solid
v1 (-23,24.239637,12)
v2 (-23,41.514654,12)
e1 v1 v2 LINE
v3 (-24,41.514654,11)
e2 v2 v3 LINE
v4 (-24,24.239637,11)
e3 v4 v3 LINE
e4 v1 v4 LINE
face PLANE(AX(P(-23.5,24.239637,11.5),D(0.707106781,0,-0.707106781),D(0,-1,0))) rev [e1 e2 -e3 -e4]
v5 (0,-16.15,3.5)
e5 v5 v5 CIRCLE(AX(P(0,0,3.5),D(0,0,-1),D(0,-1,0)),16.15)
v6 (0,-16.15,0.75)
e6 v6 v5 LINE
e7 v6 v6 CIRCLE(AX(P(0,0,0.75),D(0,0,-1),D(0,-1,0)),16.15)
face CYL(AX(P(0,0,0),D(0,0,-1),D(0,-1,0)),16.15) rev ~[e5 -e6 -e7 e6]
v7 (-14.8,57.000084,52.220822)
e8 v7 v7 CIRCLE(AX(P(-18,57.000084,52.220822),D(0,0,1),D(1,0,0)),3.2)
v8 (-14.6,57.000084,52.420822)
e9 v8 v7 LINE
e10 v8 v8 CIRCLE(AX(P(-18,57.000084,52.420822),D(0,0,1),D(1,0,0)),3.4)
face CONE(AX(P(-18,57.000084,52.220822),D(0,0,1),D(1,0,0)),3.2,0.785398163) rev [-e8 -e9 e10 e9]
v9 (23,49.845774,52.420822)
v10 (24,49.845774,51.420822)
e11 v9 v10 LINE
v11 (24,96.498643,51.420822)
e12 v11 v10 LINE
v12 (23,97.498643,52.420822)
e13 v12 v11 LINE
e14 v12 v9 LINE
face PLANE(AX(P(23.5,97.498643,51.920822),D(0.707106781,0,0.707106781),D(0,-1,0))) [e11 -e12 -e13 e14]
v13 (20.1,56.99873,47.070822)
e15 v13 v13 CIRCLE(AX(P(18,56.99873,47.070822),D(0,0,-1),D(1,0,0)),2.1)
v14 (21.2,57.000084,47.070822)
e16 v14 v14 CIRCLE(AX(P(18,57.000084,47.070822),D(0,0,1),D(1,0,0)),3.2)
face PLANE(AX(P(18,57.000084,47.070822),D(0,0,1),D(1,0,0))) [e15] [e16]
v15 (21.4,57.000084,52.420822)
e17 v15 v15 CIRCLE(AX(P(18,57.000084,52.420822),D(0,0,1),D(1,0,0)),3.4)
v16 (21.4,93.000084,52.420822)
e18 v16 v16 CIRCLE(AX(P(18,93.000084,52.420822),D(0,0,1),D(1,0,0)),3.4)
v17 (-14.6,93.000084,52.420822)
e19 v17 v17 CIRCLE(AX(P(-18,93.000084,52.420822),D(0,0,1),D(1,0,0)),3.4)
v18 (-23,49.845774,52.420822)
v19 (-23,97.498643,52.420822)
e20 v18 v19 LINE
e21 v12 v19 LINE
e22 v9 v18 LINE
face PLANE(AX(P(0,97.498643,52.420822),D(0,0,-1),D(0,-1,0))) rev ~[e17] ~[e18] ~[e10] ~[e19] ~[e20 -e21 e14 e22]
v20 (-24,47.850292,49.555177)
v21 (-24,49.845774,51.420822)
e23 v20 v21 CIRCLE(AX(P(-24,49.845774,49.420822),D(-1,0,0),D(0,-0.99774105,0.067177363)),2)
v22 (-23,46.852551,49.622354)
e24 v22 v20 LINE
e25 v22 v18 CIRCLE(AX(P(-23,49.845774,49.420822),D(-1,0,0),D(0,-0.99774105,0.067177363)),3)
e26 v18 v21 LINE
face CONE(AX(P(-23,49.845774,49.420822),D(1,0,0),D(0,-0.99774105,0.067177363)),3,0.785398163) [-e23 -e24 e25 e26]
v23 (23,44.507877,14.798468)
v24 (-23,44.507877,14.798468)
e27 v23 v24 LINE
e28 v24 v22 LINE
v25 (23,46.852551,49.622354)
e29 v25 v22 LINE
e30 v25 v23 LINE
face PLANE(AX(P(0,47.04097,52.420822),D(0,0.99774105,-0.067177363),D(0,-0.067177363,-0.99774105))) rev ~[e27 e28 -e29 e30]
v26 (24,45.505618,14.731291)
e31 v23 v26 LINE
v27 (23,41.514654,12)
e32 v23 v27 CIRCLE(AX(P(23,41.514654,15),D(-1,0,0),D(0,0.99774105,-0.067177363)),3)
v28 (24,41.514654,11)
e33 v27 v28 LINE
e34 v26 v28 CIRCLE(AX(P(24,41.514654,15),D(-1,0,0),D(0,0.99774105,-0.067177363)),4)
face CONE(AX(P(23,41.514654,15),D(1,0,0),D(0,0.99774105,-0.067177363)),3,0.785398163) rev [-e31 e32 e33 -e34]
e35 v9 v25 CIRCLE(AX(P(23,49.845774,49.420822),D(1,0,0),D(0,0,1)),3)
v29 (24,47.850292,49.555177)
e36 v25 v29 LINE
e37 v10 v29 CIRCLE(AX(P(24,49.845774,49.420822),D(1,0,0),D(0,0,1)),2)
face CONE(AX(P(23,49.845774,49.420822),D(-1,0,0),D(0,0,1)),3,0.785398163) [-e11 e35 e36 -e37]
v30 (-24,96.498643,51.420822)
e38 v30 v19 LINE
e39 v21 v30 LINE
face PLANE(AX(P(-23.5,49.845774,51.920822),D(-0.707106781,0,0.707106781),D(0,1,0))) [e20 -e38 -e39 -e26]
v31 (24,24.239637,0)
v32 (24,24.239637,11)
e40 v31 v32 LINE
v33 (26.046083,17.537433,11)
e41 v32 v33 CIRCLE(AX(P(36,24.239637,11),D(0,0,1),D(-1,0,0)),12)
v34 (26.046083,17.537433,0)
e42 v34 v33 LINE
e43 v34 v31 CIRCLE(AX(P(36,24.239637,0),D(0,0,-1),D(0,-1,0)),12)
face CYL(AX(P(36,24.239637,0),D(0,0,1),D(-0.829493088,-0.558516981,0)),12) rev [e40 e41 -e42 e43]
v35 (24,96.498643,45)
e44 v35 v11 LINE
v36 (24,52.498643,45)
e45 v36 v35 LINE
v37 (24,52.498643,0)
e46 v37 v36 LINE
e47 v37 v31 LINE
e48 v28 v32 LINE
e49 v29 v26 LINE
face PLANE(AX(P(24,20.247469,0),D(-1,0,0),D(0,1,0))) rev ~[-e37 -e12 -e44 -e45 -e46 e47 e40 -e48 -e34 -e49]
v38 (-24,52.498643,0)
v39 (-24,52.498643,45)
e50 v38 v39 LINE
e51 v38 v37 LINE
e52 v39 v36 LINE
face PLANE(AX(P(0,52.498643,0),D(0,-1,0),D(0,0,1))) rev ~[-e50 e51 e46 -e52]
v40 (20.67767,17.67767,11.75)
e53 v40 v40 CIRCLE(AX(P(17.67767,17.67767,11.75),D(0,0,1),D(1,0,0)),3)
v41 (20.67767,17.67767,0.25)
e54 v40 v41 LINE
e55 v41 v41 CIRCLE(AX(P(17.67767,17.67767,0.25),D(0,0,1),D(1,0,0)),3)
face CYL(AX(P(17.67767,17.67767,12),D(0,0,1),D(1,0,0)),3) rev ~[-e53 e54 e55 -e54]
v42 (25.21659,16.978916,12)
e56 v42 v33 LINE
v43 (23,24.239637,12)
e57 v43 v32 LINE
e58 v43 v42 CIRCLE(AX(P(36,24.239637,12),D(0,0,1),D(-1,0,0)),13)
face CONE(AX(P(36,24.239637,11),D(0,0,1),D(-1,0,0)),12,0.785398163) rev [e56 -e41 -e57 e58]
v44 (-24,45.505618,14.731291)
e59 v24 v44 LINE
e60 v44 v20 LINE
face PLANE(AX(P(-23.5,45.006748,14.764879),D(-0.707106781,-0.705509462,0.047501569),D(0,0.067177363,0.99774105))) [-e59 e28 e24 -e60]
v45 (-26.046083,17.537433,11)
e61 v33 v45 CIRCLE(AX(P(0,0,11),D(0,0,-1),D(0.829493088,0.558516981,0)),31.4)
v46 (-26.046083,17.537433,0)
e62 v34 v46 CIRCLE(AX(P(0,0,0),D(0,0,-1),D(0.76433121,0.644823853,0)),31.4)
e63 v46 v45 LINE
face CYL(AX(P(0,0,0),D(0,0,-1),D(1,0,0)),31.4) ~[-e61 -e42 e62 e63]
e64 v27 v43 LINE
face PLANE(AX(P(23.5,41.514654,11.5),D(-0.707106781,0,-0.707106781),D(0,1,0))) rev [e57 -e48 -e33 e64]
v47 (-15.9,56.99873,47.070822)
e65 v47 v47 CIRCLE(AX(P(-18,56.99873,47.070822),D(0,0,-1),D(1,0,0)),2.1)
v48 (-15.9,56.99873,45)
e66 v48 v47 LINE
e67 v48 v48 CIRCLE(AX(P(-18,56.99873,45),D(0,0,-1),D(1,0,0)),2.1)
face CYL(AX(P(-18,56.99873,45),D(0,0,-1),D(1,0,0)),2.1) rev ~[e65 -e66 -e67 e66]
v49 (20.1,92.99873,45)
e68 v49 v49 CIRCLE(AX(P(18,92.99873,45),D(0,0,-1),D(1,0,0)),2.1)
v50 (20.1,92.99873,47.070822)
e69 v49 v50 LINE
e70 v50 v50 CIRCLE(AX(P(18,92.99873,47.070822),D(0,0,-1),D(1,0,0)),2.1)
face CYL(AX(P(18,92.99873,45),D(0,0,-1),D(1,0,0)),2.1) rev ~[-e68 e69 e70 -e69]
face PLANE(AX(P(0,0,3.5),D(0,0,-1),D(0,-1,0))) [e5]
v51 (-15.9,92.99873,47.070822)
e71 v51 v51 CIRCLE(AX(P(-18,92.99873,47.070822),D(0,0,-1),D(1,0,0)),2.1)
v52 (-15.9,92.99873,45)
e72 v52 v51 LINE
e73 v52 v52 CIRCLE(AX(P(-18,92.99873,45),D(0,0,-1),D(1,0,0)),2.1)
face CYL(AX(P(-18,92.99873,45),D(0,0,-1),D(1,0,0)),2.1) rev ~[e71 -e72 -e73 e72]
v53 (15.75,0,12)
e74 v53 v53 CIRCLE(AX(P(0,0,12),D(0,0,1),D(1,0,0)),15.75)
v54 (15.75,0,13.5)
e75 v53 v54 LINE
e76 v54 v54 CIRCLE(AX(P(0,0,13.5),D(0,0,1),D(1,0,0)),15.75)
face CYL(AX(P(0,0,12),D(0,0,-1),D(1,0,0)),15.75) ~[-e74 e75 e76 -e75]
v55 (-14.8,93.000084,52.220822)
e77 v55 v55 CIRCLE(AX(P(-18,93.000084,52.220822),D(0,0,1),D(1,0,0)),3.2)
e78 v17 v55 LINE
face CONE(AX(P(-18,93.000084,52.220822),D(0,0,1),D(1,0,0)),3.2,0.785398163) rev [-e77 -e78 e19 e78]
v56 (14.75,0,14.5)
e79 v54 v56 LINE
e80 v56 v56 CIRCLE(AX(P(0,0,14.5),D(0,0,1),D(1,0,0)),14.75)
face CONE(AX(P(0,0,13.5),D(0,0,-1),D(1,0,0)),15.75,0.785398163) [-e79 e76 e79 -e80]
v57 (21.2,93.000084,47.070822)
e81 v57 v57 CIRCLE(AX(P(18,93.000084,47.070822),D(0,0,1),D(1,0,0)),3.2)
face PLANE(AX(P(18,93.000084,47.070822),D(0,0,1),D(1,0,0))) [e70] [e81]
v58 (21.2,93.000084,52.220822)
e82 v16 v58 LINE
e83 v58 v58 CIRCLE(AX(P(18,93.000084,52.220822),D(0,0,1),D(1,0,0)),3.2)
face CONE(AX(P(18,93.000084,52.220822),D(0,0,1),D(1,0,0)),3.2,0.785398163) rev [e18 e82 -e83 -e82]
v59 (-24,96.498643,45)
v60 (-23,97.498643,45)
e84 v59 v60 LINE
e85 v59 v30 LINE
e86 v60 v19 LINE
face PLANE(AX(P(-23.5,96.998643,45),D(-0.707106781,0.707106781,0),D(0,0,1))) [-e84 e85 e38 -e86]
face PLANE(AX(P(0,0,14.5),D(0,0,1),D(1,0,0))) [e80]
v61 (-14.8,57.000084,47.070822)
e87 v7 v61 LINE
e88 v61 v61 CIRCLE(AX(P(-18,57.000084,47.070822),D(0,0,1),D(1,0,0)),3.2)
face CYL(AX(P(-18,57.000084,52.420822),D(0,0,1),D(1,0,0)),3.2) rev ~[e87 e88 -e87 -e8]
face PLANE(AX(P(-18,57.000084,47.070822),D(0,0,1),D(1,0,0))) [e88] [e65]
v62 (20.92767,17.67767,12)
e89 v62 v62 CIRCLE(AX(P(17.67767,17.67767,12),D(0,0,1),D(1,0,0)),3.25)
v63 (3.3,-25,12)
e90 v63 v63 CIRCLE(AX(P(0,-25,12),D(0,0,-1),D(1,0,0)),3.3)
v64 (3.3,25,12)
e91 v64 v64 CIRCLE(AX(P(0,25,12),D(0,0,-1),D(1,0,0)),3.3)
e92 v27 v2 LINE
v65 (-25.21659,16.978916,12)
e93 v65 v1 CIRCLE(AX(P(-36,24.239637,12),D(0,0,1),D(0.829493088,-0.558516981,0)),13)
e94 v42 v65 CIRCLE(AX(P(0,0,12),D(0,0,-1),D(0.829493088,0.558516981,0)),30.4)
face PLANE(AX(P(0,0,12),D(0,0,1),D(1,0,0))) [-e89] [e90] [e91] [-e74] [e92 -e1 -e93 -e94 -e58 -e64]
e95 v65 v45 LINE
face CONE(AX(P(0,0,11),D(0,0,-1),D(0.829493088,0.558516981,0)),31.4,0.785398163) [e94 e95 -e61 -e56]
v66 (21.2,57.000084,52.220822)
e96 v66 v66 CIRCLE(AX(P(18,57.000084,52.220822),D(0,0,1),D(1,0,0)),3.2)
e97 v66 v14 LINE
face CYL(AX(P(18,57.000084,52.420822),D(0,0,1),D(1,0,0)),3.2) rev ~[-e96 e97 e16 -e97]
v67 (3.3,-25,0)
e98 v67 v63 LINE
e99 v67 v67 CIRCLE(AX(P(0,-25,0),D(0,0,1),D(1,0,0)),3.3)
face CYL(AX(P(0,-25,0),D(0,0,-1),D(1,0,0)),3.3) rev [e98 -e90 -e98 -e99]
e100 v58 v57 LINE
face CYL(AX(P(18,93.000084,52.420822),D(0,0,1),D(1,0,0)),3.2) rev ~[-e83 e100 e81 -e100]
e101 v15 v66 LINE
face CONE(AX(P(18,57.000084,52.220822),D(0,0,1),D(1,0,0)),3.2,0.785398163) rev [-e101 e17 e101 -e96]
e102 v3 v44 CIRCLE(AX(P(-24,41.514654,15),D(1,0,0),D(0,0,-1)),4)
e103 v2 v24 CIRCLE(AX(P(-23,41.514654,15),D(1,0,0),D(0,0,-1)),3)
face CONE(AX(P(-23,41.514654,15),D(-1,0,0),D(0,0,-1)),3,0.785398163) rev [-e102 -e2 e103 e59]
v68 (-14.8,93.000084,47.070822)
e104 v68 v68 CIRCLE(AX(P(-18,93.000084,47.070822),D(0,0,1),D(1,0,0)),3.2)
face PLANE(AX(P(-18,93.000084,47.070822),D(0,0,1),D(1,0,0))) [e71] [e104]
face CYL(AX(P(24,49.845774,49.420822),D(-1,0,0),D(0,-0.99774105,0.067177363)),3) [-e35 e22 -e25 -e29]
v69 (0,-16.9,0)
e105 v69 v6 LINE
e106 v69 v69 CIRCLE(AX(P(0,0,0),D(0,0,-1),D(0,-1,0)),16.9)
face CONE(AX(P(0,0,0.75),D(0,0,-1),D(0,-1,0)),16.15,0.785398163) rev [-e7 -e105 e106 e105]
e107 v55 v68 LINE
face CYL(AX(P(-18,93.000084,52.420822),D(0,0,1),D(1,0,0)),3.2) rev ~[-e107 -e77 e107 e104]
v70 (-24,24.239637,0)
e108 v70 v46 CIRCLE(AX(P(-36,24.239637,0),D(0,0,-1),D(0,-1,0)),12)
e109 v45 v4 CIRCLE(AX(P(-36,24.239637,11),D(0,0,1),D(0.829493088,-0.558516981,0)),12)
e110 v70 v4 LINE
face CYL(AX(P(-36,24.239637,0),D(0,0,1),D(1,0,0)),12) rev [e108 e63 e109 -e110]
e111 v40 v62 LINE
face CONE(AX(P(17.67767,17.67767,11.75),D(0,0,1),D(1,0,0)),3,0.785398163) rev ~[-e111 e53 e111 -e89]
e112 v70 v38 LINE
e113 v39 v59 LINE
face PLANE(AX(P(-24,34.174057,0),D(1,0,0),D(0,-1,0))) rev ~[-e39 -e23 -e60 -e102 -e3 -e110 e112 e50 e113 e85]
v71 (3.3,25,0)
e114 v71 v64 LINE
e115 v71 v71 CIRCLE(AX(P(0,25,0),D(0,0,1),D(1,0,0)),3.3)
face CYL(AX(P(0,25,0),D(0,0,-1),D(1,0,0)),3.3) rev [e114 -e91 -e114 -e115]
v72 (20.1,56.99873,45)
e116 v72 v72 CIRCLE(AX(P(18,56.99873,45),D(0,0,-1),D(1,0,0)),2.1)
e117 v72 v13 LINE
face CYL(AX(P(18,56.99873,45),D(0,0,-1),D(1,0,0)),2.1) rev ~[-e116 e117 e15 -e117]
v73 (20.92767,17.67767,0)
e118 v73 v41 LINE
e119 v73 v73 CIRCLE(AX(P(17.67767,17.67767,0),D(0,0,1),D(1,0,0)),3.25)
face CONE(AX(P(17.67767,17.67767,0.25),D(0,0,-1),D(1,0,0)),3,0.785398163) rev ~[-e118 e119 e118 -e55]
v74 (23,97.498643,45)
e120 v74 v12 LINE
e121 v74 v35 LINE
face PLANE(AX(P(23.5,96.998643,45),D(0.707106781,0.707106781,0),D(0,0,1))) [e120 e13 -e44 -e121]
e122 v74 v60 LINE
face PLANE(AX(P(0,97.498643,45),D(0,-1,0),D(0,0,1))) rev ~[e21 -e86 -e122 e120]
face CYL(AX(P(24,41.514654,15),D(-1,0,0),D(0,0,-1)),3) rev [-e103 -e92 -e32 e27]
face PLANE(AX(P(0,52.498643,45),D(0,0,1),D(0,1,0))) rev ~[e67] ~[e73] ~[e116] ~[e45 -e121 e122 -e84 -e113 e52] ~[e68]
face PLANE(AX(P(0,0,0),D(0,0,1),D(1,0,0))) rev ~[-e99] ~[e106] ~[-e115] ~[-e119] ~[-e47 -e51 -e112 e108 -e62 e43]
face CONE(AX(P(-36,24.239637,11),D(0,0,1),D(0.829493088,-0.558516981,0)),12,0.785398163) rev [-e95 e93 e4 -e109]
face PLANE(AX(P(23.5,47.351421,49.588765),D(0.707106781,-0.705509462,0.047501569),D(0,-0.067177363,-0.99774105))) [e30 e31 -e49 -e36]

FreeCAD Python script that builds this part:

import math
import FreeCAD as App
import Part
import Sketcher
Q = App.Units.Quantity


def edges_at(feature, points):
    """Names of the edges that pass closest to the given points."""
    edges = feature.Shape.Edges
    near = lambda p: min(range(len(edges)), key=lambda i: edges[i].distToShape(Part.Vertex(*p))[0])
    return sorted({f"Edge{near(p) + 1}" for p in points})


def add_polygon(sketch, points):
    """Adds a closed chain of lines whose ends are joined by coincident constraints."""
    first, n = sketch.GeometryCount, len(points)
    for a, b in zip(points, points[1:] + points[:1]):
        sketch.addGeometry(Part.LineSegment(App.Vector(*a, 0), App.Vector(*b, 0)), False)
    for i in range(n):
        sketch.addConstraint(Sketcher.Constraint("Coincident", first + i, 2, first + (i + 1) % n, 1))

doc = App.newDocument("Part")
body = doc.addObject("PartDesign::Body", "Body")

sketch1 = body.newObject("Sketcher::SketchObject", "Sketch")
sketch1.AttachmentSupport = (doc.getObject("XY_Plane"), [""])
sketch1.MapMode = "FlatFace"
sketch1.addGeometry(Part.Circle(App.Vector(0, 0, 0), App.Vector(0, 0, 1), 31), False)
sketch1.addConstraint([
    Sketcher.Constraint("Coincident", 0, 3, -1, 1),
    Sketcher.Constraint("Diameter", 0, Q("62.8 mm")),
])
pad1 = body.newObject("PartDesign::Pad", "Pad")
pad1.Profile = sketch1
pad1.Length = 12

sketch2 = body.newObject("Sketcher::SketchObject", "Sketch001")
sketch2.AttachmentSupport = (doc.getObject("XY_Plane"), [""])
sketch2.MapMode = "FlatFace"
sketch2.addGeometry(Part.Circle(App.Vector(0, 0, 0), App.Vector(0, 0, 1), 16), False)
sketch2.addConstraint([
    Sketcher.Constraint("Coincident", 0, 3, -1, 1),
    Sketcher.Constraint("Diameter", 0, Q("32.3 mm")),
])
pad2 = body.newObject("PartDesign::Pad", "Pad001")
pad2.Profile = sketch2
pad2.Length = 2.5

sketch3 = body.newObject("Sketcher::SketchObject", "Sketch002")
sketch3.AttachmentSupport = (doc.getObject("XY_Plane"), [""])
sketch3.MapMode = "FlatFace"
sketch3.AttachmentOffset = App.Placement(App.Vector(0, 0, 12), App.Rotation())
sketch3.addGeometry(Part.Circle(App.Vector(0, 0, 0), App.Vector(0, 0, 1), 16), False)
sketch3.addConstraint([
    Sketcher.Constraint("Coincident", 0, 3, -1, 1),
    Sketcher.Constraint("Diameter", 0, Q("31.5 mm")),
])
pad3 = body.newObject("PartDesign::Pad", "Pad002")
pad3.Profile = sketch3
pad3.Length = 2.5

sketch4 = body.newObject("Sketcher::SketchObject", "Sketch003")
sketch4.AttachmentSupport = (doc.getObject("XY_Plane"), [""])
sketch4.MapMode = "FlatFace"
sketch4.addGeometry(Part.Circle(App.Vector(0, 0, 0), App.Vector(0, 0, 1), 16), False)
sketch4.addConstraint([
    Sketcher.Constraint("Coincident", 0, 3, -1, 1),
    Sketcher.Constraint("Diameter", 0, Q("32.3 mm")),
])
pocket1 = body.newObject("PartDesign::Pocket", "Pocket")
pocket1.Profile = sketch4
pocket1.Length = 3.5
pocket1.Reversed = True

sketch5 = body.newObject("Sketcher::SketchObject", "Sketch004")
sketch5.AttachmentSupport = (doc.getObject("XY_Plane"), [""])
sketch5.MapMode = "FlatFace"
sketch5.addGeometry([
    Part.Circle(App.Vector(0, 25, 0), App.Vector(0, 0, 1), 3.3),
    Part.Circle(App.Vector(0, -25, 0), App.Vector(0, 0, 1), 3.3),
], False)
sketch5.addConstraint([
    Sketcher.Constraint("Equal", 0, 1),
    Sketcher.Constraint("Symmetric", 0, 3, 1, 3, -1, 1),
    Sketcher.Constraint("PointOnObject", 0, 3, -2),
    Sketcher.Constraint("Diameter", 0, Q("6.6 mm")),
    Sketcher.Constraint("DistanceY", -1, 1, 0, 3, Q("25 mm")),
])
pocket2 = body.newObject("PartDesign::Pocket", "Pocket001")
pocket2.Profile = sketch5
pocket2.Length = 20
pocket2.Reversed = True
doc.recompute()

chamfer = body.newObject("PartDesign::Chamfer", "Chamfer")
chamfer.Base = (pocket2, edges_at(pocket2, [(-15.75, 0, 14.5)]))
chamfer.Size = 1
doc.recompute()

chamfer2 = body.newObject("PartDesign::Chamfer", "Chamfer001")
chamfer2.Base = (chamfer, edges_at(chamfer, [(0, 16.15, 0)]))
chamfer2.Size = 0.75

sketch6 = body.newObject("Sketcher::SketchObject", "Sketch005")
sketch6.AttachmentSupport = (doc.getObject("XY_Plane"), [""])
sketch6.MapMode = "FlatFace"
sketch6.AttachmentOffset = App.Placement(App.Vector(0, 0, 12), App.Rotation())
sketch6.addGeometry(Part.Circle(App.Vector(17.7, 17.7, 0), App.Vector(0, 0, 1), 3), False)
sketch6.addConstraint([
    Sketcher.Constraint("Diameter", 0, Q("6 mm")),
    Sketcher.Constraint("DistanceX", -1, 1, 0, 3, Q("17.67767 mm")),
    Sketcher.Constraint("DistanceY", -1, 1, 0, 3, Q("17.67767 mm")),
])
pocket3 = body.newObject("PartDesign::Pocket", "Pocket002")
pocket3.Profile = sketch6
pocket3.Length = 12
doc.recompute()

chamfer3 = body.newObject("PartDesign::Chamfer", "Chamfer002")
chamfer3.Base = (pocket3, edges_at(pocket3, [(14.678, 17.678, 12), (14.678, 17.678, 0)]))
chamfer3.Size = 0.25

sketch7 = body.newObject("Sketcher::SketchObject", "Sketch006")
sketch7.AttachmentSupport = (doc.getObject("XY_Plane"), [""])
sketch7.MapMode = "FlatFace"
sketch7.addGeometry([
    Part.LineSegment(App.Vector(24, 20, 0), App.Vector(24, 34, 0)),
    Part.LineSegment(App.Vector(24, 34, 0), App.Vector(-24, 34, 0)),
    Part.LineSegment(App.Vector(-24, 34, 0), App.Vector(-24, 20, 0)),
    Part.ArcOfCircle(Part.Circle(App.Vector(0, 0, 0), App.Vector(0, 0, 1), 31), math.radians(40), math.radians(140)),
], False)
sketch7.addConstraint([
    Sketcher.Constraint("Coincident", 0, 2, 1, 1),
    Sketcher.Constraint("Coincident", 1, 2, 2, 1),
    Sketcher.Constraint("Coincident", 2, 2, 3, 2),
    Sketcher.Constraint("Coincident", 3, 1, 0, 1),
    Sketcher.Constraint("Vertical", 0),
    Sketcher.Constraint("Horizontal", 1),
    Sketcher.Constraint("Vertical", 2),
    Sketcher.Constraint("Coincident", 3, 3, -1, 1),
    Sketcher.Constraint("Horizontal", 2, 2, 3, 1),
    Sketcher.Constraint("Radius", 3, Q("31.4 mm")),
    Sketcher.Constraint("DistanceX", 1, 2, 1, 1, Q("48 mm")),
    Sketcher.Constraint("DistanceY", 0, 1, 0, 2, Q("13.926588 mm")),
])
pad4 = body.newObject("PartDesign::Pad", "Pad003")
pad4.Profile = sketch7
pad4.Length = 12

sketch8 = body.newObject("Sketcher::SketchObject", "Sketch007")
sketch8.AttachmentSupport = (doc.getObject("YZ_Plane"), [""])
sketch8.MapMode = "FlatFace"
add_polygon(sketch8, [(34, 0), (52, 0), (52, 45), (97, 45), (97, 52), (47, 52), (44, 12), (34, 12)])
sketch8.addConstraint([
    Sketcher.Constraint("Horizontal", 0),
    Sketcher.Constraint("Vertical", 1),
    Sketcher.Constraint("Horizontal", 2),
    Sketcher.Constraint("Vertical", 3),
    Sketcher.Constraint("Horizontal", 4),
    Sketcher.Constraint("Horizontal", 6),
    Sketcher.Constraint("Vertical", 7),
    Sketcher.Constraint("PointOnObject", 0, 2, -1),
    Sketcher.Constraint("Equal", 2, 1),
    Sketcher.Constraint("DistanceX", 2, 1, 2, 2, Q("45 mm")),
    Sketcher.Constraint("DistanceY", 7, 2, 7, 1, Q("12 mm")),
    Sketcher.Constraint("DistanceX", 6, 2, 6, 1, Q("10.298469 mm")),
    Sketcher.Constraint("DistanceX", 0, 1, 0, 2, Q("18.477654 mm")),
    Sketcher.Constraint("DistanceX", 4, 2, 4, 1, Q("50.457673 mm")),
    Sketcher.Constraint("DistanceY", 3, 1, 3, 2, Q("7.420822 mm")),
    Sketcher.Constraint("DistanceX", -1, 1, 4, 2, Q("47.04097 mm")),
])
pad5 = body.newObject("PartDesign::Pad", "Pad004")
pad5.Profile = sketch8
pad5.Type = "TwoLengths"
pad5.Length = 24
pad5.Length2 = 24

sketch9 = body.newObject("Sketcher::SketchObject", "Sketch008")
sketch9.AttachmentSupport = (doc.getObject("XY_Plane"), [""])
sketch9.MapMode = "FlatFace"
sketch9.AttachmentOffset = App.Placement(App.Vector(0, 0, 45), App.Rotation())
sketch9.addGeometry([
    Part.Circle(App.Vector(18, 93, 0), App.Vector(0, 0, 1), 2.1),
    Part.Circle(App.Vector(-18, 93, 0), App.Vector(0, 0, 1), 2.1),
    Part.Circle(App.Vector(-18, 57, 0), App.Vector(0, 0, 1), 2.1),
    Part.Circle(App.Vector(18, 57, 0), App.Vector(0, 0, 1), 2.1),
], False)
sketch9.addConstraint([
    Sketcher.Constraint("Equal", 0, 1),
    Sketcher.Constraint("Equal", 1, 2),
    Sketcher.Constraint("Equal", 2, 3),
    Sketcher.Constraint("Symmetric", 0, 3, 1, 3, -2),
    Sketcher.Constraint("Symmetric", 2, 3, 3, 3, -2),
    Sketcher.Constraint("Vertical", 1, 3, 2, 3),
    Sketcher.Constraint("Diameter", 0, Q("4.2 mm")),
    Sketcher.Constraint("DistanceX", -1, 1, 0, 3, Q("18 mm")),
    Sketcher.Constraint("DistanceY", 2, 3, 1, 3, Q("36 mm")),
    Sketcher.Constraint("DistanceY", -1, 1, 0, 3, Q("92.99873 mm")),
])
pocket4 = body.newObject("PartDesign::Pocket", "Pocket003")
pocket4.Profile = sketch9
pocket4.Length = 9.420822
pocket4.Reversed = True

sketch10 = body.newObject("Sketcher::SketchObject", "Sketch009")
sketch10.AttachmentSupport = (doc.getObject("XY_Plane"), [""])
sketch10.MapMode = "FlatFace"
sketch10.AttachmentOffset = App.Placement(App.Vector(0, 0, 52.420822), App.Rotation())
sketch10.addGeometry([
    Part.Circle(App.Vector(18, 93, 0), App.Vector(0, 0, 1), 3.2),
    Part.Circle(App.Vector(-18, 93, 0), App.Vector(0, 0, 1), 3.2),
    Part.Circle(App.Vector(-18, 57, 0), App.Vector(0, 0, 1), 3.2),
    Part.Circle(App.Vector(18, 57, 0), App.Vector(0, 0, 1), 3.2),
], False)
sketch10.addConstraint([
    Sketcher.Constraint("Equal", 0, 1),
    Sketcher.Constraint("Equal", 1, 2),
    Sketcher.Constraint("Equal", 2, 3),
    Sketcher.Constraint("Symmetric", 0, 3, 1, 3, -2),
    Sketcher.Constraint("Symmetric", 2, 3, 3, 3, -2),
    Sketcher.Constraint("Vertical", 1, 3, 2, 3),
    Sketcher.Constraint("Diameter", 0, Q("6.4 mm")),
    Sketcher.Constraint("DistanceX", -1, 1, 0, 3, Q("18 mm")),
    Sketcher.Constraint("DistanceY", 2, 3, 1, 3, Q("36 mm")),
    Sketcher.Constraint("DistanceY", -1, 1, 0, 3, Q("93.000084 mm")),
])
pocket5 = body.newObject("PartDesign::Pocket", "Pocket004")
pocket5.Profile = sketch10
pocket5.Length = 5.35
doc.recompute()

fillet = body.newObject("PartDesign::Fillet", "Fillet")
fillet.Base = (pocket5, edges_at(pocket5, [(-24, 20.247, 6), (24, 20.247, 6)]))
fillet.Radius = 12
doc.recompute()

fillet2 = body.newObject("PartDesign::Fillet", "Fillet001")
fillet2.Base = (fillet, edges_at(fillet, [(0, 44.319, 12), (0, 47.041, 52.421)]))
fillet2.Radius = 3
doc.recompute()

chamfer4 = body.newObject("PartDesign::Chamfer", "Chamfer003")
chamfer4.Base = (fillet2, edges_at(fillet2, [(24, 32.877, 12), (-24, 32.877, 12)]))
chamfer4.Size = 1
doc.recompute()

chamfer5 = body.newObject("PartDesign::Chamfer", "Chamfer004")
chamfer5.Base = (chamfer4, edges_at(chamfer4, [(24, 97.499, 48.21), (-24, 97.499, 48.21)]))
chamfer5.Size = 1
doc.recompute()

chamfer6 = body.newObject("PartDesign::Chamfer", "Chamfer005")
chamfer6.Base = (chamfer5, edges_at(chamfer5, [
    (-21.2, 57, 52.421),
    (-21.2, 93, 52.421),
    (14.8, 93, 52.421),
    (14.8, 57, 52.421),
]))
chamfer6.Size = 0.2

doc.recompute()
